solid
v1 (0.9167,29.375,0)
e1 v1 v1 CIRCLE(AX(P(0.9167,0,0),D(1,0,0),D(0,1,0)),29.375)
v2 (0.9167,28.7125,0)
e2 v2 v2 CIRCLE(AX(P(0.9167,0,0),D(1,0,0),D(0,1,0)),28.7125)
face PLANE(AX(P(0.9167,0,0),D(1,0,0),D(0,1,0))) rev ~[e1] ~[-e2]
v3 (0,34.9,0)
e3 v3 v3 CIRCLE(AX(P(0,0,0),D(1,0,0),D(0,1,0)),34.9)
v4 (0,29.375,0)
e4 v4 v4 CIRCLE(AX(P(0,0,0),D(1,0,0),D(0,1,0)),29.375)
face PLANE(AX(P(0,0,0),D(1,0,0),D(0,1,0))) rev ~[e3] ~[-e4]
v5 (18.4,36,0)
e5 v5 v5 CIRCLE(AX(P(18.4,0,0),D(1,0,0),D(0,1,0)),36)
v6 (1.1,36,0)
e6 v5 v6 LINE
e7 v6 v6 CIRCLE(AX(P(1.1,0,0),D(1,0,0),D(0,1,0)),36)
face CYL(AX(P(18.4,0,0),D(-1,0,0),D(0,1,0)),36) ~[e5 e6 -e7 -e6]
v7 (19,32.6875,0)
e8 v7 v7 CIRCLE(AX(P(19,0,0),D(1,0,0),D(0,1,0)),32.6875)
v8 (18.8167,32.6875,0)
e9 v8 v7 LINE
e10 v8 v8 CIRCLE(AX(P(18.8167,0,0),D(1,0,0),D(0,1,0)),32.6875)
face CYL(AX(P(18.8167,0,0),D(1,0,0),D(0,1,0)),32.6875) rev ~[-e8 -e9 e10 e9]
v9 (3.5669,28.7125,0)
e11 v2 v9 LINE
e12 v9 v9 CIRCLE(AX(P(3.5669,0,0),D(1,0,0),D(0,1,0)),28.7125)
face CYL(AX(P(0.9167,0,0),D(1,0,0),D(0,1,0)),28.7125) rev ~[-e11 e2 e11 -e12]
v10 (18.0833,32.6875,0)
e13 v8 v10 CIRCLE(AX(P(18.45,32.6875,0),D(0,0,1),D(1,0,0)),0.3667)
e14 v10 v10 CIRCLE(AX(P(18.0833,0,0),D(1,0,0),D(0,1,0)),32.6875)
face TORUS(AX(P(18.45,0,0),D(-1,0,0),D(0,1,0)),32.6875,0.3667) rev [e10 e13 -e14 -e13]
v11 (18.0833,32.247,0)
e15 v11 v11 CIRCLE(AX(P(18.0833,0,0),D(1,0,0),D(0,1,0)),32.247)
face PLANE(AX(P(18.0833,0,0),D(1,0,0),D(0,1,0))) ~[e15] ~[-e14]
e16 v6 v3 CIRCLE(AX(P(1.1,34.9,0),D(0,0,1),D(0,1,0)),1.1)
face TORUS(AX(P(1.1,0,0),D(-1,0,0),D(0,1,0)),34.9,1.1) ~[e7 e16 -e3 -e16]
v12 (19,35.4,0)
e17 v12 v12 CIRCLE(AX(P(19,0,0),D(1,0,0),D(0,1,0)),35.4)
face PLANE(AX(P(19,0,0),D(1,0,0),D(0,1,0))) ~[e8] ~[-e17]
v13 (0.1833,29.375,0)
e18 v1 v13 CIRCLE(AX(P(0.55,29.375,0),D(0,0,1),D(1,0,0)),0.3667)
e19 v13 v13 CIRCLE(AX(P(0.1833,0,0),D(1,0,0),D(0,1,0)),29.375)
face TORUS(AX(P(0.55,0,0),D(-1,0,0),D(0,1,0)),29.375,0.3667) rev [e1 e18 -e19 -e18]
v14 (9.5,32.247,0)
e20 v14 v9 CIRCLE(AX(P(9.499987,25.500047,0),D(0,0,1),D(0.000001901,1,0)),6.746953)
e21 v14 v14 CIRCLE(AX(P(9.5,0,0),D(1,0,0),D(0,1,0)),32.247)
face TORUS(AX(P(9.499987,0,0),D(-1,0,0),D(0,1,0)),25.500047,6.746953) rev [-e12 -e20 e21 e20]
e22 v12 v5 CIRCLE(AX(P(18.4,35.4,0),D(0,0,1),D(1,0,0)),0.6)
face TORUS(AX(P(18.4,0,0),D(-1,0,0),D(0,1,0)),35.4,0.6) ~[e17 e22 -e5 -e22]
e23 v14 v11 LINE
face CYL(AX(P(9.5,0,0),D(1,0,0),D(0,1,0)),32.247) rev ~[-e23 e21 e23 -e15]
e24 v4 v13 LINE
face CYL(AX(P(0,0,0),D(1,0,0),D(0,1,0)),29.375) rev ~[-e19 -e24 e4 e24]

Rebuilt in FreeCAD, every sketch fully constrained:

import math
import FreeCAD as App
import Part
import Sketcher

V = App.Vector
Q = App.Units.Quantity

doc = App.newDocument("Part")
body = doc.addObject("PartDesign::Body", "Body")

sketch1 = body.newObject("Sketcher::SketchObject", "Sketch")
sketch1.AttachmentSupport = (doc.getObject("XY_Plane"), [""])
sketch1.MapMode = "FlatFace"
sketch1.addGeometry([
    Part.ArcOfCircle(Part.Circle(V(1.1, 34.9, 0), V(0, 0, 1), 1.1), math.radians(90), math.radians(180)),
    Part.LineSegment(V(0, 34.9, 0), V(0, 29.38, 0)),
    Part.LineSegment(V(0, 29.38, 0), V(0.18, 29.38, 0)),
    Part.ArcOfCircle(Part.Circle(V(0.55, 29.38, 0), V(0, 0, 1), 0.37), math.radians(0), math.radians(180)),
    Part.LineSegment(V(0.92, 29.38, 0), V(0.92, 28.71, 0)),
    Part.LineSegment(V(0.92, 28.71, 0), V(3.57, 28.71, 0)),
    Part.ArcOfCircle(Part.Circle(V(9.5, 25.5, 0), V(0, 0, 1), 6.75), math.radians(90), math.radians(152)),
    Part.LineSegment(V(9.5, 32.25, 0), V(18.08, 32.25, 0)),
    Part.LineSegment(V(18.08, 32.25, 0), V(18.08, 32.69, 0)),
    Part.ArcOfCircle(Part.Circle(V(18.45, 32.69, 0), V(0, 0, 1), 0.37), math.radians(0), math.radians(180)),
    Part.LineSegment(V(18.82, 32.69, 0), V(19, 32.69, 0)),
    Part.LineSegment(V(19, 32.69, 0), V(19, 35.4, 0)),
    Part.ArcOfCircle(Part.Circle(V(18.4, 35.4, 0), V(0, 0, 1), 0.6), math.radians(0), math.radians(90)),
    Part.LineSegment(V(18.4, 36, 0), V(1.1, 36, 0)),
], False)
sketch1.addConstraint([
    Sketcher.Constraint("Tangent", 0, 2, 1, 1),
    Sketcher.Constraint("Coincident", 1, 2, 2, 1),
    Sketcher.Constraint("Coincident", 2, 2, 3, 2),
    Sketcher.Constraint("Tangent", 3, 1, 4, 1),
    Sketcher.Constraint("Coincident", 4, 2, 5, 1),
    Sketcher.Constraint("Coincident", 5, 2, 6, 2),
    Sketcher.Constraint("Tangent", 6, 1, 7, 1),
    Sketcher.Constraint("Coincident", 7, 2, 8, 1),
    Sketcher.Constraint("Tangent", 8, 2, 9, 2),
    Sketcher.Constraint("Coincident", 9, 1, 10, 1),
    Sketcher.Constraint("Coincident", 10, 2, 11, 1),
    Sketcher.Constraint("Tangent", 11, 2, 12, 1),
    Sketcher.Constraint("Tangent", 12, 2, 13, 1),
    Sketcher.Constraint("Tangent", 13, 2, 0, 1),
    Sketcher.Constraint("Vertical", 1),
    Sketcher.Constraint("Horizontal", 2),
    Sketcher.Constraint("Vertical", 4),
    Sketcher.Constraint("Horizontal", 5),
    Sketcher.Constraint("Horizontal", 7),
    Sketcher.Constraint("Vertical", 8),
    Sketcher.Constraint("Horizontal", 10),
    Sketcher.Constraint("Vertical", 11),
    Sketcher.Constraint("Horizontal", 13),
    Sketcher.Constraint("Equal", 3, 9),
    Sketcher.Constraint("PointOnObject", 0, 2, -2),
    Sketcher.Constraint("Horizontal", 3, 3, 1, 2),
    Sketcher.Constraint("Horizontal", 8, 2, 9, 1),
    Sketcher.Constraint("Equal", 2, 10),
    Sketcher.Constraint("Radius", 0, Q("1.1 mm")),
    Sketcher.Constraint("Radius", 12, Q("0.6 mm")),
    Sketcher.Constraint("DistanceX", 13, 2, 13, 1, Q("17.3 mm")),
    Sketcher.Constraint("DistanceY", -1, 1, 12, 2, Q("36 mm")),
    Sketcher.Constraint("Radius", 6, Q("6.747 mm")),
    Sketcher.Constraint("DistanceX", -1, 1, 6, 3, Q("9.5 mm")),
    Sketcher.Constraint("DistanceY", -1, 1, 6, 3, Q("25.5 mm")),
    Sketcher.Constraint("Radius", 3, Q("0.3667 mm")),
    Sketcher.Constraint("DistanceX", 3, 3, 9, 3, Q("17.9 mm")),
    Sketcher.Constraint("DistanceY", 1, 2, 1, 1, Q("5.525 mm")),
    Sketcher.Constraint("DistanceX", 5, 1, 5, 2, Q("2.6502 mm")),
    Sketcher.Constraint("DistanceY", 8, 1, 8, 2, Q("0.4405 mm")),
])
revolution = body.newObject("PartDesign::Revolution", "Revolution")
revolution.Profile = sketch1
revolution.ReferenceAxis = (sketch1, ["H_Axis"])
revolution.Angle = 360

doc.recompute()
